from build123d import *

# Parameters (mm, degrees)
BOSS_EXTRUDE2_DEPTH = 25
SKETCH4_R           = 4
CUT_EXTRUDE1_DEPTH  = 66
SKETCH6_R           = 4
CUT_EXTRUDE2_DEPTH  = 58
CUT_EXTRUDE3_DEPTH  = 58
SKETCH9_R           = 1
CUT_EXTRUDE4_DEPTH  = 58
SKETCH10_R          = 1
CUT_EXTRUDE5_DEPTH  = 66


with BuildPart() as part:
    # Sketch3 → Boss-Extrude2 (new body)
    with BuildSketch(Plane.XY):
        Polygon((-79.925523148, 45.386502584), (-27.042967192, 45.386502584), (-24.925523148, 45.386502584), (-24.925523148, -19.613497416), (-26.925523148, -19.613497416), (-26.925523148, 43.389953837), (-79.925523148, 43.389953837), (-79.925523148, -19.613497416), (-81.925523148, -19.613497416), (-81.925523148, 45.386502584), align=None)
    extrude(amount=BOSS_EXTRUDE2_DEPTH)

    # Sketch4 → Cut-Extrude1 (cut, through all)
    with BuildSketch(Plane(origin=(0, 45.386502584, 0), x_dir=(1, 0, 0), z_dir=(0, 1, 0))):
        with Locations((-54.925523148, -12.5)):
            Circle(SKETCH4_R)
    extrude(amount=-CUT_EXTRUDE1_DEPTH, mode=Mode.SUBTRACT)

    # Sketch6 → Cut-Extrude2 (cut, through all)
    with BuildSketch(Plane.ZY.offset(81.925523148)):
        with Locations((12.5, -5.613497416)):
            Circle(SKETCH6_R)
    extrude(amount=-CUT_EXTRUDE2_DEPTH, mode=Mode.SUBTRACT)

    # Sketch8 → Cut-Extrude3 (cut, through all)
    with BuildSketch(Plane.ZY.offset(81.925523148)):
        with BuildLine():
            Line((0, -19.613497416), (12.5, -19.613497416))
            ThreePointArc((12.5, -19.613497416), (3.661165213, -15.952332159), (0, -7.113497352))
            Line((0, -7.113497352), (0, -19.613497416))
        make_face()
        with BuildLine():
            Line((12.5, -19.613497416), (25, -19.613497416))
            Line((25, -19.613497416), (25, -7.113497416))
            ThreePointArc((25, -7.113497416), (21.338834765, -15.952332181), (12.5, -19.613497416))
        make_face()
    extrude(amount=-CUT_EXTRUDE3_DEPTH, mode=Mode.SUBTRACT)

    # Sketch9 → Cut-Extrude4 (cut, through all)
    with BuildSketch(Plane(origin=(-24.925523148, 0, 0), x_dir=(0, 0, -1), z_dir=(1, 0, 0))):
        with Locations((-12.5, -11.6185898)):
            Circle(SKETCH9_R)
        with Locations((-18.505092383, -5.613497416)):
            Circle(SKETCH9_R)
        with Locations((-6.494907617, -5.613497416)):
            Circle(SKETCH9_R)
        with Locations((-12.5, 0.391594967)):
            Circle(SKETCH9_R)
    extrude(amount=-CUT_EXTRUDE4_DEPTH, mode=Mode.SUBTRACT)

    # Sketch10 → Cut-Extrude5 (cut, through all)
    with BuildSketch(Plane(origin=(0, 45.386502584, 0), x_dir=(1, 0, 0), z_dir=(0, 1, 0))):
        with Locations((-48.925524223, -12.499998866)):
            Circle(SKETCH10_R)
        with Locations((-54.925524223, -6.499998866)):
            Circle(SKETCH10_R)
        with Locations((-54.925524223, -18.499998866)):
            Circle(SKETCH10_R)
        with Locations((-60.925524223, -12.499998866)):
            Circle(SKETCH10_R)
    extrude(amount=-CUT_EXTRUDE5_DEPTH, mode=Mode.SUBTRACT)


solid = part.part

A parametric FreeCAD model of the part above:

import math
import FreeCAD as App
import Part
import Sketcher
Q = App.Units.Quantity


def add_polygon(sketch, points):
    """Adds a closed chain of lines whose ends are joined by coincident constraints."""
    first, n = sketch.GeometryCount, len(points)
    for a, b in zip(points, points[1:] + points[:1]):
        sketch.addGeometry(Part.LineSegment(App.Vector(*a, 0), App.Vector(*b, 0)), False)
    for i in range(n):
        sketch.addConstraint(Sketcher.Constraint("Coincident", first + i, 2, first + (i + 1) % n, 1))

doc = App.newDocument("Part")
params = doc.addObject("Spreadsheet::Sheet", "Params")
for row, (alias, value) in enumerate([
    ("sketch1_width", "57 mm"),
    ("sketch1_width2", "2 mm"),
    ("sketch1_height", "65 mm"),
    ("pad1_length", "25 mm"),
    ("sketch2_diameter", "8 mm"),
    ("sketch3_diameter", "8 mm"),
    ("sketch4_radius", "12.5 mm"),
    ("sketch5_diameter", "2 mm"),
    ("sketch6_diameter", "2 mm"),
], start=1):
    params.set(f"A{row}", alias)
    params.set(f"B{row}", "=" + value)
    params.setAlias(f"B{row}", alias)

body = doc.addObject("PartDesign::Body", "Body")

# Sketch on XY plane
sketch1 = doc.addObject("Sketcher::SketchObject", "Sketch")
body.addObject(sketch1)
sketch1.AttachmentSupport = (doc.XY_Plane, [""])
sketch1.MapMode = "FlatFace"
add_polygon(sketch1, [(-24.925523, 45.386503), (-81.925523, 45.386503), (-81.925523, -19.613497), (-79.925523, -19.613497), (-79.925523, 43.389954), (-26.925523, 43.389954), (-26.925523, -19.613497), (-24.925523, -19.613497)])  # lines 0-7
sketch1.addConstraint(Sketcher.Constraint("Horizontal", 0))
sketch1.addConstraint(Sketcher.Constraint("Vertical", 1))
sketch1.addConstraint(Sketcher.Constraint("Horizontal", 2))
sketch1.addConstraint(Sketcher.Constraint("Vertical", 3))
sketch1.addConstraint(Sketcher.Constraint("Horizontal", 4))
sketch1.addConstraint(Sketcher.Constraint("Vertical", 5))
sketch1.addConstraint(Sketcher.Constraint("Horizontal", 6))
sketch1.addConstraint(Sketcher.Constraint("Vertical", 7))
sketch1.addConstraint(Sketcher.Constraint("Horizontal", 2, 2, 5, 2))
sketch1.addConstraint(Sketcher.Constraint("Equal", 2, 6))
sketch1.addConstraint(Sketcher.Constraint("DistanceX", 0, 2, 0, 1, Q("57 mm")))
sketch1.addConstraint(Sketcher.Constraint("DistanceX", 2, 1, 2, 2, Q("2 mm")))
sketch1.addConstraint(Sketcher.Constraint("DistanceY", 1, 2, 1, 1, Q("65 mm")))
sketch1.addConstraint(Sketcher.Constraint("DistanceY", 3, 1, 3, 2, Q("63.003451 mm")))
sketch1.addConstraint(Sketcher.Constraint("DistanceX", 0, 2, -1, 1, Q("81.925523 mm")))
sketch1.addConstraint(Sketcher.Constraint("DistanceY", -1, 1, 0, 2, Q("45.386503 mm")))
sketch1.setExpression("Constraints[18]", "Params.sketch1_width")
sketch1.setExpression("Constraints[19]", "Params.sketch1_width2")
sketch1.setExpression("Constraints[20]", "Params.sketch1_height")
pad1 = doc.addObject("PartDesign::Pad", "Pad")
body.addObject(pad1)
pad1.Profile = sketch1
pad1.setExpression("Length", "Params.pad1_length")

# Sketch on XZ plane
sketch2 = doc.addObject("Sketcher::SketchObject", "Sketch001")
body.addObject(sketch2)
sketch2.AttachmentSupport = (doc.XZ_Plane, [""])
sketch2.MapMode = "FlatFace"
sketch2.AttachmentOffset = App.Placement(App.Vector(0, 0, -45.386503), App.Rotation())
sketch2.addGeometry(Part.Circle(App.Vector(-54.925523, 12.5, 0), App.Vector(0, 0, 1), 4), False)
sketch2.addConstraint(Sketcher.Constraint("Diameter", 0, Q("8 mm")))
sketch2.addConstraint(Sketcher.Constraint("DistanceY", -1, 1, 0, 3, Q("12.5 mm")))
sketch2.addConstraint(Sketcher.Constraint("DistanceX", 0, 3, -1, 1, Q("54.925523 mm")))
sketch2.setExpression("Constraints[0]", "Params.sketch2_diameter")
pocket1 = doc.addObject("PartDesign::Pocket", "Pocket")
body.addObject(pocket1)
pocket1.Profile = sketch2
pocket1.Type = "ThroughAll"
pocket1.Reversed = True

# Sketch on YZ plane
sketch3 = doc.addObject("Sketcher::SketchObject", "Sketch002")
body.addObject(sketch3)
sketch3.AttachmentSupport = (doc.YZ_Plane, [""])
sketch3.MapMode = "FlatFace"
sketch3.AttachmentOffset = App.Placement(App.Vector(0, 0, -81.925523), App.Rotation())
sketch3.addGeometry(Part.Circle(App.Vector(-5.613497, 12.5, 0), App.Vector(0, 0, 1), 4), False)
sketch3.addConstraint(Sketcher.Constraint("Diameter", 0, Q("8 mm")))
sketch3.addConstraint(Sketcher.Constraint("DistanceY", -1, 1, 0, 3, Q("12.5 mm")))
sketch3.addConstraint(Sketcher.Constraint("DistanceX", 0, 3, -1, 1, Q("5.613497 mm")))
sketch3.setExpression("Constraints[0]", "Params.sketch3_diameter")
pocket2 = doc.addObject("PartDesign::Pocket", "Pocket001")
body.addObject(pocket2)
pocket2.Profile = sketch3
pocket2.Type = "ThroughAll"
pocket2.Reversed = True

# Sketch on YZ plane
sketch4 = doc.addObject("Sketcher::SketchObject", "Sketch003")
body.addObject(sketch4)
sketch4.AttachmentSupport = (doc.YZ_Plane, [""])
sketch4.MapMode = "FlatFace"
sketch4.AttachmentOffset = App.Placement(App.Vector(0, 0, -81.925523), App.Rotation())
sketch4.addGeometry(Part.LineSegment(App.Vector(-19.613497, 0, 0), App.Vector(-19.613497, 12.5, 0)), False)
sketch4.addGeometry(Part.ArcOfCircle(Part.Circle(App.Vector(-7.113497, 12.5, 0), App.Vector(0, 0, 1), 12.5), math.radians(180), math.radians(270)), False)
sketch4.addGeometry(Part.LineSegment(App.Vector(-7.113497, 0, 0), App.Vector(-19.613497, 0, 0)), False)
sketch4.addGeometry(Part.LineSegment(App.Vector(-19.613497, 12.5, 0), App.Vector(-19.613497, 25, 0)), False)
sketch4.addGeometry(Part.LineSegment(App.Vector(-19.613497, 25, 0), App.Vector(-7.113497, 25, 0)), False)
sketch4.addGeometry(Part.ArcOfCircle(Part.Circle(App.Vector(-7.113497, 12.5, 0), App.Vector(0, 0, 1), 12.5), math.radians(90), math.radians(180)), False)
sketch4.addConstraint(Sketcher.Constraint("Tangent", 0, 2, 1, 1))
sketch4.addConstraint(Sketcher.Constraint("Tangent", 1, 2, 2, 1))
sketch4.addConstraint(Sketcher.Constraint("Coincident", 2, 2, 0, 1))
sketch4.addConstraint(Sketcher.Constraint("Coincident", 3, 2, 4, 1))
sketch4.addConstraint(Sketcher.Constraint("Tangent", 4, 2, 5, 1))
sketch4.addConstraint(Sketcher.Constraint("Tangent", 5, 2, 3, 1))
sketch4.addConstraint(Sketcher.Constraint("Vertical", 0))
sketch4.addConstraint(Sketcher.Constraint("Horizontal", 2))
sketch4.addConstraint(Sketcher.Constraint("Vertical", 3))
sketch4.addConstraint(Sketcher.Constraint("Horizontal", 4))
sketch4.addConstraint(Sketcher.Constraint("Coincident", 5, 3, 1, 3))
sketch4.addConstraint(Sketcher.Constraint("Equal", 1, 5))
sketch4.addConstraint(Sketcher.Constraint("PointOnObject", 1, 2, -1))
sketch4.addConstraint(Sketcher.Constraint("Radius", 1, Q("12.5 mm")))
sketch4.addConstraint(Sketcher.Constraint("DistanceX", 1, 3, -1, 1, Q("7.113497 mm")))
sketch4.setExpression("Constraints[13]", "Params.sketch4_radius")
pocket3 = doc.addObject("PartDesign::Pocket", "Pocket002")
body.addObject(pocket3)
pocket3.Profile = sketch4
pocket3.Type = "ThroughAll"
pocket3.Reversed = True

# Sketch on YZ plane
sketch5 = doc.addObject("Sketcher::SketchObject", "Sketch004")
body.addObject(sketch5)
sketch5.AttachmentSupport = (doc.YZ_Plane, [""])
sketch5.MapMode = "FlatFace"
sketch5.AttachmentOffset = App.Placement(App.Vector(0, 0, -24.925523), App.Rotation())
sketch5.addGeometry(Part.Circle(App.Vector(-11.61859, 12.5, 0), App.Vector(0, 0, 1), 1), False)
sketch5.addGeometry(Part.Circle(App.Vector(-5.613497, 18.505092, 0), App.Vector(0, 0, 1), 1), False)
sketch5.addGeometry(Part.Circle(App.Vector(-5.613497, 6.494908, 0), App.Vector(0, 0, 1), 1), False)
sketch5.addGeometry(Part.Circle(App.Vector(0.391595, 12.5, 0), App.Vector(0, 0, 1), 1), False)
sketch5.addConstraint(Sketcher.Constraint("Equal", 0, 1))
sketch5.addConstraint(Sketcher.Constraint("Equal", 1, 2))
sketch5.addConstraint(Sketcher.Constraint("Equal", 2, 3))
sketch5.addConstraint(Sketcher.Constraint("Horizontal", 0, 3, 3, 3))
sketch5.addConstraint(Sketcher.Constraint("Vertical", 1, 3, 2, 3))
sketch5.addConstraint(Sketcher.Constraint("Diameter", 0, Q("2 mm")))
sketch5.addConstraint(Sketcher.Constraint("DistanceY", -1, 1, 0, 3, Q("12.5 mm")))
sketch5.addConstraint(Sketcher.Constraint("DistanceX", 0, 3, -1, 1, Q("11.61859 mm")))
sketch5.addConstraint(Sketcher.Constraint("DistanceX", 1, 3, -1, 1, Q("5.613497 mm")))
sketch5.addConstraint(Sketcher.Constraint("DistanceY", -1, 1, 1, 3, Q("18.505092 mm")))
sketch5.addConstraint(Sketcher.Constraint("DistanceY", -1, 1, 2, 3, Q("6.494908 mm")))
sketch5.addConstraint(Sketcher.Constraint("DistanceX", -1, 1, 3, 3, Q("0.391595 mm")))
sketch5.setExpression("Constraints[5]", "Params.sketch5_diameter")
pocket4 = doc.addObject("PartDesign::Pocket", "Pocket003")
body.addObject(pocket4)
pocket4.Profile = sketch5
pocket4.Type = "ThroughAll"

# Sketch on XZ plane
sketch6 = doc.addObject("Sketcher::SketchObject", "Sketch005")
body.addObject(sketch6)
sketch6.AttachmentSupport = (doc.XZ_Plane, [""])
sketch6.MapMode = "FlatFace"
sketch6.AttachmentOffset = App.Placement(App.Vector(0, 0, -45.386503), App.Rotation())
sketch6.addGeometry(Part.Circle(App.Vector(-48.925524, 12.499999, 0), App.Vector(0, 0, 1), 1), False)
sketch6.addGeometry(Part.Circle(App.Vector(-54.925524, 6.499999, 0), App.Vector(0, 0, 1), 1), False)
sketch6.addGeometry(Part.Circle(App.Vector(-54.925524, 18.499999, 0), App.Vector(0, 0, 1), 1), False)
sketch6.addGeometry(Part.Circle(App.Vector(-60.925524, 12.499999, 0), App.Vector(0, 0, 1), 1), False)
sketch6.addConstraint(Sketcher.Constraint("Equal", 0, 1))
sketch6.addConstraint(Sketcher.Constraint("Equal", 1, 2))
sketch6.addConstraint(Sketcher.Constraint("Equal", 2, 3))
sketch6.addConstraint(Sketcher.Constraint("Horizontal", 0, 3, 3, 3))
sketch6.addConstraint(Sketcher.Constraint("Vertical", 1, 3, 2, 3))
sketch6.addConstraint(Sketcher.Constraint("Diameter", 0, Q("2 mm")))
sketch6.addConstraint(Sketcher.Constraint("DistanceX", 1, 3, 0, 3, Q("6 mm")))
sketch6.addConstraint(Sketcher.Constraint("DistanceY", 1, 3, 0, 3, Q("6 mm")))
sketch6.addConstraint(Sketcher.Constraint("DistanceY", 0, 3, 2, 3, Q("6 mm")))
sketch6.addConstraint(Sketcher.Constraint("DistanceX", 3, 3, 1, 3, Q("6 mm")))
sketch6.addConstraint(Sketcher.Constraint("DistanceY", -1, 1, 0, 3, Q("12.499999 mm")))
sketch6.addConstraint(Sketcher.Constraint("DistanceX", 0, 3, -1, 1, Q("48.925524 mm")))
sketch6.setExpression("Constraints[5]", "Params.sketch6_diameter")
pocket5 = doc.addObject("PartDesign::Pocket", "Pocket004")
body.addObject(pocket5)
pocket5.Profile = sketch6
pocket5.Type = "ThroughAll"
pocket5.Reversed = True

doc.recompute()
